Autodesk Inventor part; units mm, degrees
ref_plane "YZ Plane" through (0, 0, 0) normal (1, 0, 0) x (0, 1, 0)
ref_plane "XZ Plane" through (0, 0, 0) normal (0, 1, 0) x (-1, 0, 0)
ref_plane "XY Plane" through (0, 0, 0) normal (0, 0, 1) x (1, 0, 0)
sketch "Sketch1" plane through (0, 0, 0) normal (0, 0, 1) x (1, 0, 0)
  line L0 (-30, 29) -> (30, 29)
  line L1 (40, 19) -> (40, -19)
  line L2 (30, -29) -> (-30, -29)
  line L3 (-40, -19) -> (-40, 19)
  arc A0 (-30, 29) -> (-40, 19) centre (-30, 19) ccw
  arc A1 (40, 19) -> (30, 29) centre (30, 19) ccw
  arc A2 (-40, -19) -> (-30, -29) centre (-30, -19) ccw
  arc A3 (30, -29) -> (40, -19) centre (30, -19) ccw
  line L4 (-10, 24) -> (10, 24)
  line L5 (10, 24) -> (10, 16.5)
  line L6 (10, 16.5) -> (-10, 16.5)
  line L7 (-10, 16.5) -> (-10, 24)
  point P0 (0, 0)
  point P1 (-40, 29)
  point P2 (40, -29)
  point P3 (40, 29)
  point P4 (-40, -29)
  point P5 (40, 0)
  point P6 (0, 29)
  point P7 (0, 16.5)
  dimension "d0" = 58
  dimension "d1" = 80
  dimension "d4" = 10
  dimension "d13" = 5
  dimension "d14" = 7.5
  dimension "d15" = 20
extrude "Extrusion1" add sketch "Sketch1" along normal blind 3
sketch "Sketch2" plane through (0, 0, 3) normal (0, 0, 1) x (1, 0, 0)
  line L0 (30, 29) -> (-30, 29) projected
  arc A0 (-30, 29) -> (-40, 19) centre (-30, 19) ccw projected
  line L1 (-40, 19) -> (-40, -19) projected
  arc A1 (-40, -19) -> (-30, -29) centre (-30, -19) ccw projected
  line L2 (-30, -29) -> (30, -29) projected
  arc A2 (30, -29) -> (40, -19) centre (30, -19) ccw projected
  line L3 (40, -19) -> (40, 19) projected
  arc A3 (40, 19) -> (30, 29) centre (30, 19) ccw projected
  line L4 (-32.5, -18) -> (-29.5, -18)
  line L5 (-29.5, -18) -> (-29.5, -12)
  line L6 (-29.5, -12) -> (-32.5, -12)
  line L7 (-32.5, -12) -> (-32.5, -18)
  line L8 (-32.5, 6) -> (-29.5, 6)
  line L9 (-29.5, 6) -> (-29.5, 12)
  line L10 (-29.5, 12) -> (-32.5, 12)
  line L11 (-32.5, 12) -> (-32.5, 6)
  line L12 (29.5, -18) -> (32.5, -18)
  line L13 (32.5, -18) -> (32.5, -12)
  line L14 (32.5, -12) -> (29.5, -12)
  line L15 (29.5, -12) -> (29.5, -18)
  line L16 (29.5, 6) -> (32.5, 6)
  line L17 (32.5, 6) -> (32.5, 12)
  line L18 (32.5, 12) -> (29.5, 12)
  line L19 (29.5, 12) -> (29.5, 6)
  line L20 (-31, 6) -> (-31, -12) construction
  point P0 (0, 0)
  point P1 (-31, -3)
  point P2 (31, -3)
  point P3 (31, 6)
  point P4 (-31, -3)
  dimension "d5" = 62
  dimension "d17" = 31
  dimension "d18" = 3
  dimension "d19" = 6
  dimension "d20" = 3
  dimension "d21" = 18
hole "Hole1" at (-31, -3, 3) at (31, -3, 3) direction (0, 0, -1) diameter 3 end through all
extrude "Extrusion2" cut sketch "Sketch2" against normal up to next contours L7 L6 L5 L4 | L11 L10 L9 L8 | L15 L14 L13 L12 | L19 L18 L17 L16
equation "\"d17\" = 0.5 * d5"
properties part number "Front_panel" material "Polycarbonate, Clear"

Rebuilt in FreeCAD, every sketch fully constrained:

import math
import FreeCAD as App
import Part
import Sketcher
from FreeCAD import Vector
Q = App.Units.Quantity


def add_polygon(sketch, points):
    """Adds a closed chain of lines whose ends are joined by coincident constraints."""
    first, n = sketch.GeometryCount, len(points)
    for a, b in zip(points, points[1:] + points[:1]):
        sketch.addGeometry(Part.LineSegment(App.Vector(*a, 0), App.Vector(*b, 0)), False)
    for i in range(n):
        sketch.addConstraint(Sketcher.Constraint("Coincident", first + i, 2, first + (i + 1) % n, 1))

doc = App.newDocument("Part")
body = doc.addObject("PartDesign::Body", "Body")

sketch1 = body.newObject("Sketcher::SketchObject", "Sketch")
sketch1.AttachmentSupport = (doc.getObject("XY_Plane"), [""])
sketch1.MapMode = "FlatFace"
sketch1.addGeometry(Part.LineSegment(Vector(30, 29, 0), Vector(-30, 29, 0)), False)
sketch1.addGeometry(Part.ArcOfCircle(Part.Circle(Vector(-30, 19, 0), Vector(0, 0, 1), 10), math.radians(90), math.radians(180)), False)
sketch1.addGeometry(Part.LineSegment(Vector(-40, 19, 0), Vector(-40, -19, 0)), False)
sketch1.addGeometry(Part.ArcOfCircle(Part.Circle(Vector(-30, -19, 0), Vector(0, 0, 1), 10), math.radians(180), math.radians(270)), False)
sketch1.addGeometry(Part.LineSegment(Vector(-30, -29, 0), Vector(30, -29, 0)), False)
sketch1.addGeometry(Part.ArcOfCircle(Part.Circle(Vector(30, -19, 0), Vector(0, 0, 1), 10), math.radians(-90), math.radians(0)), False)
sketch1.addGeometry(Part.LineSegment(Vector(40, -19, 0), Vector(40, 19, 0)), False)
sketch1.addGeometry(Part.ArcOfCircle(Part.Circle(Vector(30, 19, 0), Vector(0, 0, 1), 10), math.radians(0), math.radians(90)), False)
add_polygon(sketch1, [(-10, 16.5), (-10, 24), (10, 24), (10, 16.5)])
sketch1.addConstraint([
    Sketcher.Constraint("Tangent", 0, 2, 1, 1),
    Sketcher.Constraint("Tangent", 1, 2, 2, 1),
    Sketcher.Constraint("Tangent", 2, 2, 3, 1),
    Sketcher.Constraint("Tangent", 3, 2, 4, 1),
    Sketcher.Constraint("Tangent", 4, 2, 5, 1),
    Sketcher.Constraint("Tangent", 5, 2, 6, 1),
    Sketcher.Constraint("Tangent", 6, 2, 7, 1),
    Sketcher.Constraint("Tangent", 7, 2, 0, 1),
    Sketcher.Constraint("Horizontal", 0),
    Sketcher.Constraint("Vertical", 2),
    Sketcher.Constraint("Horizontal", 4),
    Sketcher.Constraint("Vertical", 6),
    Sketcher.Constraint("Vertical", 8),
    Sketcher.Constraint("Horizontal", 9),
    Sketcher.Constraint("Vertical", 10),
    Sketcher.Constraint("Horizontal", 11),
    Sketcher.Constraint("Equal", 1, 3),
    Sketcher.Constraint("Equal", 3, 5),
    Sketcher.Constraint("Equal", 5, 7),
    Sketcher.Constraint("Symmetric", 1, 3, 5, 3, -1, 1),
    Sketcher.Constraint("Radius", 1, Q("10 mm")),
    Sketcher.Constraint("DistanceX", 9, 1, 9, 2, Q("20 mm")),
    Sketcher.Constraint("DistanceY", 8, 1, 8, 2, Q("7.5 mm")),
    Sketcher.Constraint("DistanceX", 8, 2, -1, 1, Q("10 mm")),
    Sketcher.Constraint("DistanceY", 3, 2, 0, 2, Q("58 mm")),
    Sketcher.Constraint("DistanceX", 1, 3, 8, 2, Q("20 mm")),
    Sketcher.Constraint("DistanceY", 1, 3, 8, 2, Q("5 mm")),
])
pad1 = body.newObject("PartDesign::Pad", "Pad")
pad1.Profile = sketch1
pad1.Length = 3

sketch2 = body.newObject("Sketcher::SketchObject", "Sketch001")
sketch2.AttachmentSupport = (doc.getObject("XY_Plane"), [""])
sketch2.MapMode = "FlatFace"
sketch2.AttachmentOffset = App.Placement(Vector(0, 0, 3), App.Rotation())
sketch2.addGeometry([
    Part.Circle(Vector(-31, -3, 0), Vector(0, 0, 1), 1.5),
    Part.Circle(Vector(31, -3, 0), Vector(0, 0, 1), 1.5),
], False)
sketch2.addConstraint([
    Sketcher.Constraint("Equal", 0, 1),
    Sketcher.Constraint("Symmetric", 0, 3, 1, 3, -2),
    Sketcher.Constraint("Diameter", 0, Q("3 mm")),
    Sketcher.Constraint("DistanceX", 0, 3, -1, 1, Q("31 mm")),
    Sketcher.Constraint("DistanceY", 0, 3, -1, 1, Q("3 mm")),
])
doc.recompute()
hole = body.newObject("PartDesign::Hole", "Hole")
hole.Profile = sketch2
hole.ThreadType = "None"
hole.Diameter = 3
hole.DepthType = "ThroughAll"

sketch3 = body.newObject("Sketcher::SketchObject", "Sketch002")
sketch3.AttachmentSupport = (doc.getObject("XY_Plane"), [""])
sketch3.MapMode = "FlatFace"
sketch3.AttachmentOffset = App.Placement(Vector(0, 0, 3), App.Rotation())
add_polygon(sketch3, [(-32.5, -12), (-32.5, -18), (-29.5, -18), (-29.5, -12)])
add_polygon(sketch3, [(-32.5, 12), (-32.5, 6), (-29.5, 6), (-29.5, 12)])
add_polygon(sketch3, [(29.5, -12), (29.5, -18), (32.5, -18), (32.5, -12)])
add_polygon(sketch3, [(29.5, 12), (29.5, 6), (32.5, 6), (32.5, 12)])
sketch3.addConstraint([
    Sketcher.Constraint("Vertical", 0),
    Sketcher.Constraint("Horizontal", 1),
    Sketcher.Constraint("Vertical", 2),
    Sketcher.Constraint("Horizontal", 3),
    Sketcher.Constraint("Vertical", 4),
    Sketcher.Constraint("Horizontal", 5),
    Sketcher.Constraint("Vertical", 6),
    Sketcher.Constraint("Horizontal", 7),
    Sketcher.Constraint("Vertical", 8),
    Sketcher.Constraint("Horizontal", 9),
    Sketcher.Constraint("Vertical", 10),
    Sketcher.Constraint("Horizontal", 11),
    Sketcher.Constraint("Vertical", 12),
    Sketcher.Constraint("Horizontal", 13),
    Sketcher.Constraint("Vertical", 14),
    Sketcher.Constraint("Horizontal", 15),
    Sketcher.Constraint("Symmetric", 7, 2, 10, 2, -1, 1),
    Sketcher.Constraint("Symmetric", 3, 2, 14, 2, -1, 1),
    Sketcher.Constraint("Symmetric", 1, 2, 8, 2, -2),
    Sketcher.Constraint("Symmetric", 3, 2, 10, 2, -2),
    Sketcher.Constraint("Symmetric", 5, 2, 12, 2, -2),
    Sketcher.Constraint("Vertical", 2, 2, 5, 2),
    Sketcher.Constraint("Equal", 2, 4),
    Sketcher.Constraint("DistanceX", 1, 1, 1, 2, Q("3 mm")),
    Sketcher.Constraint("DistanceY", 0, 2, 0, 1, Q("6 mm")),
    Sketcher.Constraint("DistanceY", 0, 2, -1, 1, Q("18 mm")),
    Sketcher.Constraint("DistanceX", 0, 2, 8, 2, Q("62 mm")),
])
pocket1 = body.newObject("PartDesign::Pocket", "Pocket")
pocket1.Profile = sketch3
pocket1.Type = "UpToFirst"

doc.recompute()
